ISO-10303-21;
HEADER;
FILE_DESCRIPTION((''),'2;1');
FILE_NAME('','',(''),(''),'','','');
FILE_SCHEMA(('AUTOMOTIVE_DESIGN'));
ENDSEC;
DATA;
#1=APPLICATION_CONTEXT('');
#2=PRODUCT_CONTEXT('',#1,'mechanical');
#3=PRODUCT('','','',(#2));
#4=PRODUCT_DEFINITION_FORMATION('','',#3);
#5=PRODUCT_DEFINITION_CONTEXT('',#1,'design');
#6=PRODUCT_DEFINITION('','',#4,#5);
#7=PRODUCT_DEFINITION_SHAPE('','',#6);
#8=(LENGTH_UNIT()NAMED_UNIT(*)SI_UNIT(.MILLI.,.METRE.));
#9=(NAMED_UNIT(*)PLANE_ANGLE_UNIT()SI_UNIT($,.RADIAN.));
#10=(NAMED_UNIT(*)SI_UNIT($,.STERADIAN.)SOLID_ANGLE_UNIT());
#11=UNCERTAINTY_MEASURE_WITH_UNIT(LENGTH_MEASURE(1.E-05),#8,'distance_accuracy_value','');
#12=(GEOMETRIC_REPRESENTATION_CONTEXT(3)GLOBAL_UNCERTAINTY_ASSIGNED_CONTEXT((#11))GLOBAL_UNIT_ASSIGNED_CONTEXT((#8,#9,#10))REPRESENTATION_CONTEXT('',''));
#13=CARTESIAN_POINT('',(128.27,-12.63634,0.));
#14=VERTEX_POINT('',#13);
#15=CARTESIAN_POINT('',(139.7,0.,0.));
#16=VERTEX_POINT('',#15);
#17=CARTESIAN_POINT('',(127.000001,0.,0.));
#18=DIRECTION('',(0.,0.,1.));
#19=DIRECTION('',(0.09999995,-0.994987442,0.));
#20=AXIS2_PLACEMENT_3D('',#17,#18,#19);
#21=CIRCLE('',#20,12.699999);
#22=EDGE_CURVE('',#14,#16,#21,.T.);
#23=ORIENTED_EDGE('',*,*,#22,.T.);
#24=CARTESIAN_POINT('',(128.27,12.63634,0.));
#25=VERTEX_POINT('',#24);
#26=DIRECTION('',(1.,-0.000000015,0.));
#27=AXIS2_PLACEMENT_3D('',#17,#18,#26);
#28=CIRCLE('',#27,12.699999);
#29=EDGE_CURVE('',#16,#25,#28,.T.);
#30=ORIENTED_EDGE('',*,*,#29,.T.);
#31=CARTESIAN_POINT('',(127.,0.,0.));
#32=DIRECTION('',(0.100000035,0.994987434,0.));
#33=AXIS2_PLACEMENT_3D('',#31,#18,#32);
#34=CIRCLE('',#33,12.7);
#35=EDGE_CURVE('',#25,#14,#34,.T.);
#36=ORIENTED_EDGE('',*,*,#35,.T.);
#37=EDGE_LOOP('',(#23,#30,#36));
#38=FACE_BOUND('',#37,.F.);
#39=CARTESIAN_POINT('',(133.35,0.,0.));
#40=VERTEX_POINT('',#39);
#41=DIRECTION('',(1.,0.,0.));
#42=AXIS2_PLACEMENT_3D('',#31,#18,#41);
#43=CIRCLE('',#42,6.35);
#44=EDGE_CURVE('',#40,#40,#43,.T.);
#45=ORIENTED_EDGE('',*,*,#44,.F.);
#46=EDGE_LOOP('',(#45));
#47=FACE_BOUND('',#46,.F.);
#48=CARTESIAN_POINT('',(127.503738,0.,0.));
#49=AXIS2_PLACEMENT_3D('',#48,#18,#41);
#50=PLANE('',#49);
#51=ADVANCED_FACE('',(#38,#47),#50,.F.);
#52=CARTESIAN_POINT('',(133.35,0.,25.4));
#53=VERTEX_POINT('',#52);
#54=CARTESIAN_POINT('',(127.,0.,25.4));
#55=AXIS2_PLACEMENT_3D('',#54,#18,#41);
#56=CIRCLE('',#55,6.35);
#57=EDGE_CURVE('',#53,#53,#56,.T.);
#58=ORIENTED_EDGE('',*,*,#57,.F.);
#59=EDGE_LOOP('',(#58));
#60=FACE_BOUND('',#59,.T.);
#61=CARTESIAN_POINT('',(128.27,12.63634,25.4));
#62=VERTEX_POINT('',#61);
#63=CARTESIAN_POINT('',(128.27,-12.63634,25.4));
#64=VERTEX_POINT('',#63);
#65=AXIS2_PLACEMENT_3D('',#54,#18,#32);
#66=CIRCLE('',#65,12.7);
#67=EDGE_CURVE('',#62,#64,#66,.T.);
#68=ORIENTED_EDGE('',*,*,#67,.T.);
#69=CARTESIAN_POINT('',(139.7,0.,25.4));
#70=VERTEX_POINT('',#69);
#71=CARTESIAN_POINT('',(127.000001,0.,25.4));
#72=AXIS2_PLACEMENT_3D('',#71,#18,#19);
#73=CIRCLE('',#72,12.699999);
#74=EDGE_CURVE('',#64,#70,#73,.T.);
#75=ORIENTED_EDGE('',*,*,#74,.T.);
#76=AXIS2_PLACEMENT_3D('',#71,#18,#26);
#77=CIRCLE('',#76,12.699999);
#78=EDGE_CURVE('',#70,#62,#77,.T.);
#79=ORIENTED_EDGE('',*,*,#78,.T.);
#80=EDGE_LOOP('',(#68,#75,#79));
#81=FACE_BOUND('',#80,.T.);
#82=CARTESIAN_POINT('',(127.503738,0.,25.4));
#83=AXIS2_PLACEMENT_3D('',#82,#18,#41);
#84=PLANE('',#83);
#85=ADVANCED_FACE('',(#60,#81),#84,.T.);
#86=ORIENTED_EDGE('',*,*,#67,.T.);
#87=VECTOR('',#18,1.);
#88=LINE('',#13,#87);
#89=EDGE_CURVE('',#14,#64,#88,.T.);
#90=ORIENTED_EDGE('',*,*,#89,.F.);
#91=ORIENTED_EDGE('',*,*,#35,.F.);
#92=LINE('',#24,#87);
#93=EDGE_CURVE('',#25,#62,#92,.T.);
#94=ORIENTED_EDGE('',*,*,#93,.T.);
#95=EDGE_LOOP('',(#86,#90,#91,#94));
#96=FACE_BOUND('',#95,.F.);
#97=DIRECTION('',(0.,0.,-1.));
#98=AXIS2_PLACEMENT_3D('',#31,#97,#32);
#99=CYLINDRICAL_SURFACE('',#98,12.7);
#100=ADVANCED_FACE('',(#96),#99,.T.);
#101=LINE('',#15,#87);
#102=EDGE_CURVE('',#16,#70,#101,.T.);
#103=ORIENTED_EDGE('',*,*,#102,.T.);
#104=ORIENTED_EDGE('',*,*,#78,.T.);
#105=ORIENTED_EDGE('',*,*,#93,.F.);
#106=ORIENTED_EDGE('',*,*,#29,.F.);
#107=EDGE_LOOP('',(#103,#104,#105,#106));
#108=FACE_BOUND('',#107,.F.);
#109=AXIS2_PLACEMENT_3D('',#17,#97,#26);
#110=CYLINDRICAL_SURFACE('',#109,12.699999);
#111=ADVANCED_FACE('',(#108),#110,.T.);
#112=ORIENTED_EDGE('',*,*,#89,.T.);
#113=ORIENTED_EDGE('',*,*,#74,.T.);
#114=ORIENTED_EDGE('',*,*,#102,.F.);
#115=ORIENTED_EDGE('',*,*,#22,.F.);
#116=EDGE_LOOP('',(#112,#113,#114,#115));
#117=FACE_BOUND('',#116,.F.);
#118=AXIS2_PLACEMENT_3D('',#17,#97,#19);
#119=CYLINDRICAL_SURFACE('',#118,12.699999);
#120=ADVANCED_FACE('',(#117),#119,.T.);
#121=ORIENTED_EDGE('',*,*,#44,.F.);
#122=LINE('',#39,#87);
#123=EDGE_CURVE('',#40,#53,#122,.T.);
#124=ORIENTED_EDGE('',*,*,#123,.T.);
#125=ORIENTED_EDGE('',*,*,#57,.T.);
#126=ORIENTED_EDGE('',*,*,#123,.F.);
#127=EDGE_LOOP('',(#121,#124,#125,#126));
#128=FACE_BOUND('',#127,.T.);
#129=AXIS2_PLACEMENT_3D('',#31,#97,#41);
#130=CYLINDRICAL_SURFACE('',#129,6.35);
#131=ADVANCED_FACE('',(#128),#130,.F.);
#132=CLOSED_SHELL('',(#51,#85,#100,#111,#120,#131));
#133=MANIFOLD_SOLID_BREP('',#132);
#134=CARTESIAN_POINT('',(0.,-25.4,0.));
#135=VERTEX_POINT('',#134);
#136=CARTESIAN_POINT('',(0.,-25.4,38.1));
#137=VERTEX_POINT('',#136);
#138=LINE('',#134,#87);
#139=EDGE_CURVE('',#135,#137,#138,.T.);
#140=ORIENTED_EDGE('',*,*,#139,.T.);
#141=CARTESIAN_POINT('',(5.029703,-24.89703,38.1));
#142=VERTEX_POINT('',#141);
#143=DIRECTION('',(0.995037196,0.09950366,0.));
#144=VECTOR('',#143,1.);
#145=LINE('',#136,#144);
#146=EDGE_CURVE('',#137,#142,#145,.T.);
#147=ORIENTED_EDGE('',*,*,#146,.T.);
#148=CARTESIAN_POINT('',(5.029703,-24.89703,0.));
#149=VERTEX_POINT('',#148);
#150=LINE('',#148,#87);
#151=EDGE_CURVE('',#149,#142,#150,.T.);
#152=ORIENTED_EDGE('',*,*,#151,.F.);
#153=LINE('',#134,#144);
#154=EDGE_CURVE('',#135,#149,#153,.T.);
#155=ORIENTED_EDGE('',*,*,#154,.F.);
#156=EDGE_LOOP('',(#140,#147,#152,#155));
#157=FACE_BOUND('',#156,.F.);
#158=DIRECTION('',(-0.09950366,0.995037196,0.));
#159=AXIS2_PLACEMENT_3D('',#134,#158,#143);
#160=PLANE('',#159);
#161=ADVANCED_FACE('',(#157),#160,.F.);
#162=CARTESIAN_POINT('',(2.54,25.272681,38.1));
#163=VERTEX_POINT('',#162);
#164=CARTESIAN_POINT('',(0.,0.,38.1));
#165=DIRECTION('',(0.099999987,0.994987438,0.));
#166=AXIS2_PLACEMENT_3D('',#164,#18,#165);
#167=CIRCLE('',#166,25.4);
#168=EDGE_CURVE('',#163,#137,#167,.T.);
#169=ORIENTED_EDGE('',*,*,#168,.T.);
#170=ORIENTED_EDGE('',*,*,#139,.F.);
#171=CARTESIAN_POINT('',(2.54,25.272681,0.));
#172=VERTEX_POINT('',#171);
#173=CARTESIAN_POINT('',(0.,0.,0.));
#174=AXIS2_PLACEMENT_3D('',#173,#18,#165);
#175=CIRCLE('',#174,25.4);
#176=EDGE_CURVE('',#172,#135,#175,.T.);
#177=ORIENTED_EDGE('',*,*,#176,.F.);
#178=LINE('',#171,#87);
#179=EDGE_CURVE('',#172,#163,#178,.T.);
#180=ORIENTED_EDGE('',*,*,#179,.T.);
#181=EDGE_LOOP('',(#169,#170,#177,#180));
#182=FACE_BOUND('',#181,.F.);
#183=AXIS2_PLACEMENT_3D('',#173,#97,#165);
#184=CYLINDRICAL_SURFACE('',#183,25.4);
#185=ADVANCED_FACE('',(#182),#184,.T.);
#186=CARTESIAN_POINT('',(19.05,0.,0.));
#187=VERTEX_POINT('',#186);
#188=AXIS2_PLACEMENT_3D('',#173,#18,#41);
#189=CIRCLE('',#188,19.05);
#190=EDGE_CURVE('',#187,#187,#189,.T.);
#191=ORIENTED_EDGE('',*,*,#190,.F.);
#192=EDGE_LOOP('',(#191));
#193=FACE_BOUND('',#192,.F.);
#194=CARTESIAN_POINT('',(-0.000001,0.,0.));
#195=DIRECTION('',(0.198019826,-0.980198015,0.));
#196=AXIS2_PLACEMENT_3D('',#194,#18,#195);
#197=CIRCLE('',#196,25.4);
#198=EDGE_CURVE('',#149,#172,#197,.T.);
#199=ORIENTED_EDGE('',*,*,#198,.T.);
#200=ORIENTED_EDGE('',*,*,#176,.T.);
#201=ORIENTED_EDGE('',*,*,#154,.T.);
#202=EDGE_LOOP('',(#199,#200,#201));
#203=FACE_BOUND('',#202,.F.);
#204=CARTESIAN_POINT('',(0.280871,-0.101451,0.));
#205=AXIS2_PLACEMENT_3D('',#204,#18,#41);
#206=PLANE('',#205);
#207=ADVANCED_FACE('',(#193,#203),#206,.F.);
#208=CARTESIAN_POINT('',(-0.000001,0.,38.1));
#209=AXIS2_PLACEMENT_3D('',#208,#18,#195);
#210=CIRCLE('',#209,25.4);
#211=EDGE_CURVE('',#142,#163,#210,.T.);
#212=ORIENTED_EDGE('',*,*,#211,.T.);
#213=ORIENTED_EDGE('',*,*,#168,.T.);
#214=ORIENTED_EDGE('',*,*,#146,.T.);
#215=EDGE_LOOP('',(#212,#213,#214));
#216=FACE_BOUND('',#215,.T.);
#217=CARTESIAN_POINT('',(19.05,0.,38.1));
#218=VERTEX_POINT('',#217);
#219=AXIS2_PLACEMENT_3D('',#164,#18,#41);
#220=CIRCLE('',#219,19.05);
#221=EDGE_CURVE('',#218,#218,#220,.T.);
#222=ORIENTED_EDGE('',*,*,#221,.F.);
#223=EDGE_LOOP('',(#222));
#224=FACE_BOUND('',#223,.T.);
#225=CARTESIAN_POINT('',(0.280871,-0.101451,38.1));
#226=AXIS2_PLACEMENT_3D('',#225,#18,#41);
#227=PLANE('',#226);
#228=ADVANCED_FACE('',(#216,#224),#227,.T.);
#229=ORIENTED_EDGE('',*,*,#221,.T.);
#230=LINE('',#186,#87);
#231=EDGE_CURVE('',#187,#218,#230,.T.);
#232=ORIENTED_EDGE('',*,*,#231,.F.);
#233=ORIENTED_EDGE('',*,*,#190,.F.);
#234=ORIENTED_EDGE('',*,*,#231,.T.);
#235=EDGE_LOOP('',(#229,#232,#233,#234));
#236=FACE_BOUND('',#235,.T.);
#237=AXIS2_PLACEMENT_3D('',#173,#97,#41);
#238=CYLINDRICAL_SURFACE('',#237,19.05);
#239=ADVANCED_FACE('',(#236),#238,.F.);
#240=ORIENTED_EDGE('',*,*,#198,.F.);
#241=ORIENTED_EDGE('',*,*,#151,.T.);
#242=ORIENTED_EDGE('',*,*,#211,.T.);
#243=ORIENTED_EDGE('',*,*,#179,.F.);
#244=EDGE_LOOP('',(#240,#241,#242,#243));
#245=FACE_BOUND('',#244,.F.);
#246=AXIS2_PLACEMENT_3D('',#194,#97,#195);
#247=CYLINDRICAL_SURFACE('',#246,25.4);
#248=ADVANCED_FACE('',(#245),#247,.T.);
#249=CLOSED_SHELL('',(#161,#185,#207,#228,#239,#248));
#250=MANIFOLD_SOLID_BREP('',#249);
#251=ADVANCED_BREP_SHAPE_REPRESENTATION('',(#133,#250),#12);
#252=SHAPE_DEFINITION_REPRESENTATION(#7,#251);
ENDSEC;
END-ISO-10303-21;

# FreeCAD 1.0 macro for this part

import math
import FreeCAD as App
import Part
import Sketcher

V = App.Vector
Q = App.Units.Quantity

doc = App.newDocument("Part")
body = doc.addObject("PartDesign::Body", "Body")

sketch1 = body.newObject("Sketcher::SketchObject", "Sketch")
sketch1.AttachmentSupport = (doc.getObject("XY_Plane"), [""])
sketch1.MapMode = "FlatFace"
sketch1.addGeometry([
    Part.LineSegment(V(0, -25, 0), V(5, -25, 0)),
    Part.ArcOfCircle(Part.Circle(V(0, 0, 0), V(0, 0, 1), 25), math.radians(-79), math.radians(84)),
    Part.ArcOfCircle(Part.Circle(V(0, 0, 0), V(0, 0, 1), 25), math.radians(84), math.radians(270)),
    Part.Circle(V(0, 0, 0), V(0, 0, 1), 19),
], False)
sketch1.addConstraint([
    Sketcher.Constraint("Coincident", 0, 2, 1, 1),
    Sketcher.Constraint("Tangent", 1, 2, 2, 1),
    Sketcher.Constraint("Coincident", 2, 2, 0, 1),
    Sketcher.Constraint("Coincident", 1, 3, -1, 1),
    Sketcher.Constraint("Coincident", 3, 3, -1, 1),
    Sketcher.Constraint("Equal", 1, 2),
    Sketcher.Constraint("PointOnObject", 2, 2, -2),
    Sketcher.Constraint("Radius", 1, Q("1 in")),
    Sketcher.Constraint("Diameter", 3, Q("1.5 in")),
    Sketcher.Constraint("DistanceX", -1, 1, 1, 2, Q("0.1 in")),
    Sketcher.Constraint("Distance", 0, 5.054789),
])
pad1 = body.newObject("PartDesign::Pad", "Pad")
pad1.Profile = sketch1
pad1.Length = Q("1.5 in")
body2 = doc.addObject("PartDesign::Body", "Body001")

sketch2 = body2.newObject("Sketcher::SketchObject", "Sketch001")
sketch2.AttachmentSupport = (doc.getObject("XY_Plane001"), [""])
sketch2.MapMode = "FlatFace"
sketch2.addGeometry([
    Part.ArcOfCircle(Part.Circle(V(127, 0, 0), V(0, 0, 1), 13), math.radians(0), math.radians(84)),
    Part.ArcOfCircle(Part.Circle(V(127, 0, 0), V(0, 0, 1), 13), math.radians(84), math.radians(276)),
    Part.ArcOfCircle(Part.Circle(V(127, 0, 0), V(0, 0, 1), 13), math.radians(-84), math.radians(0)),
    Part.Circle(V(127, 0, 0), V(0, 0, 1), 6),
], False)
sketch2.addConstraint([
    Sketcher.Constraint("Tangent", 0, 2, 1, 1),
    Sketcher.Constraint("Tangent", 1, 2, 2, 1),
    Sketcher.Constraint("Tangent", 2, 2, 0, 1),
    Sketcher.Constraint("Coincident", 3, 3, 0, 3),
    Sketcher.Constraint("Symmetric", 0, 2, 1, 2, -1),
    Sketcher.Constraint("PointOnObject", 2, 2, -1),
    Sketcher.Constraint("Diameter", 3, Q("0.5 in")),
    Sketcher.Constraint("Radius", 0, Q("0.5 in")),
    Sketcher.Constraint("DistanceX", -1, 1, 0, 3, Q("5 in")),
    Sketcher.Constraint("DistanceX", -1, 1, 0, 2, Q("5.05 in")),
])
pad2 = body2.newObject("PartDesign::Pad", "Pad001")
pad2.Profile = sketch2
pad2.Length = Q("1 in")

doc.recompute()
